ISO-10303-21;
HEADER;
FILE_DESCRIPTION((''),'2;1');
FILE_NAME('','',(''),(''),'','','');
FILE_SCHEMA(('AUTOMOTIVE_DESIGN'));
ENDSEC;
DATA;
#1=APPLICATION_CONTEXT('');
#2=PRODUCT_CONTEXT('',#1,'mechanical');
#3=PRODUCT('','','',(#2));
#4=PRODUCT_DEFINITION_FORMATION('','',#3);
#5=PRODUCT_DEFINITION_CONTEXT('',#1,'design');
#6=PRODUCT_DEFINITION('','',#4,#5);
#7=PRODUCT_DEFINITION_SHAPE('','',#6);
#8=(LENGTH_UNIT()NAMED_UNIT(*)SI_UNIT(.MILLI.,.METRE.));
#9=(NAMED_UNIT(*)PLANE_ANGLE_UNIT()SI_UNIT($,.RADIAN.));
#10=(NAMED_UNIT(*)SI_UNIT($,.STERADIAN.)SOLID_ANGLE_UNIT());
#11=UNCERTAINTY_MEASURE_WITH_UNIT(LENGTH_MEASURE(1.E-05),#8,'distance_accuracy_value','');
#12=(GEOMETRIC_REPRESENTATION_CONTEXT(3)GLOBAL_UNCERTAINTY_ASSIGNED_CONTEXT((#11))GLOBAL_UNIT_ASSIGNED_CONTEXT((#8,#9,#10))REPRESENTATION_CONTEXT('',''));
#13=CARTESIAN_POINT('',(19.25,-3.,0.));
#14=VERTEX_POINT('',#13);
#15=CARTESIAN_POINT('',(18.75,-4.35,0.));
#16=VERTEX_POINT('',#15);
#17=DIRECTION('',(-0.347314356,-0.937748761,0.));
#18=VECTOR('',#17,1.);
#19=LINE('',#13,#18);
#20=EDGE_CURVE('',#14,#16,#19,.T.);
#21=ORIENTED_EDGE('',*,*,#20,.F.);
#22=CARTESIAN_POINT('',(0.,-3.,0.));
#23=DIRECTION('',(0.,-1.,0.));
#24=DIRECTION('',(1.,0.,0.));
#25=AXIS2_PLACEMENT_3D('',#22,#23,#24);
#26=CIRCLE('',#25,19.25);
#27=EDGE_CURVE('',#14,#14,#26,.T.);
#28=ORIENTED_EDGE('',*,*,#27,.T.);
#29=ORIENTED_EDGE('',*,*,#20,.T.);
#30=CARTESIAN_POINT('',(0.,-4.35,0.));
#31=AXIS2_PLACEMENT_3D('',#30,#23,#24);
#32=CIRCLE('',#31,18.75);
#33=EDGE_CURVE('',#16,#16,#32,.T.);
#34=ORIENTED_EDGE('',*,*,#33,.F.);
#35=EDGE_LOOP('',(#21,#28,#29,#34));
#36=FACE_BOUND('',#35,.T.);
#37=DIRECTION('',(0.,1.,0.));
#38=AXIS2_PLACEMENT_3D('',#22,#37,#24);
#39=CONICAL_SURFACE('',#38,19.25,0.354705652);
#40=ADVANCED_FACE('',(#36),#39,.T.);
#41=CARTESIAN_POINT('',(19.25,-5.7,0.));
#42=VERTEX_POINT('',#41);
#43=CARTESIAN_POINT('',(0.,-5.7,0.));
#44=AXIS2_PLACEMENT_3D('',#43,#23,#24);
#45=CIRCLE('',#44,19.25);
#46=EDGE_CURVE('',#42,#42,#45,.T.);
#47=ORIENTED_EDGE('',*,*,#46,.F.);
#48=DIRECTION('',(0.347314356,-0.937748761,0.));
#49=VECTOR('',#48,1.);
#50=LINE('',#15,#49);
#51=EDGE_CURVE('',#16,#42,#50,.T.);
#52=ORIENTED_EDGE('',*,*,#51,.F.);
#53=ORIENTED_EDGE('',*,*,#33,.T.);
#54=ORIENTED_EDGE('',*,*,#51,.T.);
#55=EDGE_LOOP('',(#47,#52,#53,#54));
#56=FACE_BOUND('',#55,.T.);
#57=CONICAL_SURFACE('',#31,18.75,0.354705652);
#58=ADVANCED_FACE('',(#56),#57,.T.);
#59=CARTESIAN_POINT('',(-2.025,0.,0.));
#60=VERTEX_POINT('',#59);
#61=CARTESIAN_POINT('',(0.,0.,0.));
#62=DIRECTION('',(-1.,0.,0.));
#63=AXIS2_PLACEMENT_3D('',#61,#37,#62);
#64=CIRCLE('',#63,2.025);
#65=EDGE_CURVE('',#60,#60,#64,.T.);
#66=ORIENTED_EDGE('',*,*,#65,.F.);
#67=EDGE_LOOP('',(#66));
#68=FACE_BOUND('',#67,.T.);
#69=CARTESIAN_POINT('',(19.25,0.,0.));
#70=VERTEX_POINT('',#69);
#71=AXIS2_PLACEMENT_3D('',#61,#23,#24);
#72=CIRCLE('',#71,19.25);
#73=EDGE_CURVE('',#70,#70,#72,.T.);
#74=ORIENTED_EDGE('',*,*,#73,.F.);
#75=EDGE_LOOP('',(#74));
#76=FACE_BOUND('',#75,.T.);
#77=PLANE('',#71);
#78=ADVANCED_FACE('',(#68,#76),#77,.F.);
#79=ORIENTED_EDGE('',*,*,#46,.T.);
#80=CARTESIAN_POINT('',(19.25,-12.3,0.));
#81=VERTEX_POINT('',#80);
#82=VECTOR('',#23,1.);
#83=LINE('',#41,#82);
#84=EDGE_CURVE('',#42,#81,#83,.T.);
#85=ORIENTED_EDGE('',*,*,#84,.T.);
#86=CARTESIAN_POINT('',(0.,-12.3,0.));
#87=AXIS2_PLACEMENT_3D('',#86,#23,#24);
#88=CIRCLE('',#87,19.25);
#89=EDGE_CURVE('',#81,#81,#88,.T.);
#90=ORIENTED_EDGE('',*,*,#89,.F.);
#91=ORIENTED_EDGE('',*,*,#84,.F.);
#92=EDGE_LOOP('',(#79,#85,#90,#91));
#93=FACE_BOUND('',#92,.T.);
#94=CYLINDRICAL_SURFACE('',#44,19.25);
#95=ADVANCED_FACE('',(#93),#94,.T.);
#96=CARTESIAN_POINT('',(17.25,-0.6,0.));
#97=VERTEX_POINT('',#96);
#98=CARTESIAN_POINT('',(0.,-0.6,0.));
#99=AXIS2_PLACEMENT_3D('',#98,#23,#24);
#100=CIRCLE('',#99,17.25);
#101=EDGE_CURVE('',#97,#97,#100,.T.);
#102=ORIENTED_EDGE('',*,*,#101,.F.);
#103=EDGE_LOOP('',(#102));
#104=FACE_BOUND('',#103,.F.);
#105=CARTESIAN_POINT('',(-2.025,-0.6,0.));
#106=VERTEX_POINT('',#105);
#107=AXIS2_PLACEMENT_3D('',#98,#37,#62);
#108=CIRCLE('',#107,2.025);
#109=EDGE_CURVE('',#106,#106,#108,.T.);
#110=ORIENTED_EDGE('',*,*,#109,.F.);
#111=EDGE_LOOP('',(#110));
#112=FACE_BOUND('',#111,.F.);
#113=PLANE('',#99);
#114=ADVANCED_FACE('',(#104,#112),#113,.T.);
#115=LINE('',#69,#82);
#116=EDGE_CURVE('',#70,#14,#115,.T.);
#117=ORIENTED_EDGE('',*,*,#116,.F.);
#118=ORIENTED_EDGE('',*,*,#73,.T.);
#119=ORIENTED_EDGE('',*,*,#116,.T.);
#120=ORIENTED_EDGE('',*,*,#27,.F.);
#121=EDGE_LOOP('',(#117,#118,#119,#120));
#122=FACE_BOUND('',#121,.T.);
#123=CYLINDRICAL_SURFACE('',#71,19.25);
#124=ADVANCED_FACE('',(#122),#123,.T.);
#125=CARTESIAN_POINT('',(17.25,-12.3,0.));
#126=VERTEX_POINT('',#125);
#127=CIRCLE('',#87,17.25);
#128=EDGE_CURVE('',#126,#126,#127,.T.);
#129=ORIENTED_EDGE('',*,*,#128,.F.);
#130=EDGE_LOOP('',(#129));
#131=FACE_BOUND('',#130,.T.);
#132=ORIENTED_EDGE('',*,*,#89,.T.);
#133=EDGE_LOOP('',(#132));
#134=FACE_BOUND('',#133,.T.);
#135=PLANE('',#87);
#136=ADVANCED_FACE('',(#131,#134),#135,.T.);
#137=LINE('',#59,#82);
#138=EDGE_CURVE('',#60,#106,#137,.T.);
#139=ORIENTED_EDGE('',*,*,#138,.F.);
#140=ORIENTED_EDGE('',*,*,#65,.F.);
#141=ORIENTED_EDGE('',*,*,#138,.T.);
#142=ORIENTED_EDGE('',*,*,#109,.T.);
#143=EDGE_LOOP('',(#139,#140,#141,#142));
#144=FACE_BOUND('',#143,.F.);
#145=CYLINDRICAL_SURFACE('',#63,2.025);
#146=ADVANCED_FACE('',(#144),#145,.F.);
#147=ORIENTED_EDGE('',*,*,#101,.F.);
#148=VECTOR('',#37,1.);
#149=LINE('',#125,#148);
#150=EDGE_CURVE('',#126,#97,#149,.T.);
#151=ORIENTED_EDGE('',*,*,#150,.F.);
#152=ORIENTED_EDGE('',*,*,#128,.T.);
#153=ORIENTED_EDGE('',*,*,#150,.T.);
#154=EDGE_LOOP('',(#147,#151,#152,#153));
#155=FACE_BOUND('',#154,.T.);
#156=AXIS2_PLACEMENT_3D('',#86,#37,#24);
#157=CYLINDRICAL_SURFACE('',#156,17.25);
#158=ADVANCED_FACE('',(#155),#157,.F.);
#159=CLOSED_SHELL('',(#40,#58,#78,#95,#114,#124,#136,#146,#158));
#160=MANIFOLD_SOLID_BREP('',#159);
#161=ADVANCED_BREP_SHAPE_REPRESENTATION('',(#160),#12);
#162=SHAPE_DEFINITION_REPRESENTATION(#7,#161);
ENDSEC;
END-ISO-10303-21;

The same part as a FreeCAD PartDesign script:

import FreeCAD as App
import Part
import Sketcher
from FreeCAD import Vector
Q = App.Units.Quantity

doc = App.newDocument("Part")
body = doc.addObject("PartDesign::Body", "Body")

sketch1 = doc.addObject("Sketcher::SketchObject", "Sketch")
body.addObject(sketch1)
sketch1.AttachmentSupport = (doc.XY_Plane, [""])
sketch1.MapMode = "FlatFace"
sketch1.addGeometry(Part.LineSegment(Vector(19.25, 0, 0), Vector(0, 0, 0)), False)
sketch1.addGeometry(Part.LineSegment(Vector(0, 0, 0), Vector(0, -0.6, 0)), False)
sketch1.addGeometry(Part.LineSegment(Vector(0, -0.6, 0), Vector(17.25, -0.6, 0)), False)
sketch1.addGeometry(Part.LineSegment(Vector(17.25, -0.6, 0), Vector(17.25, -12.3, 0)), False)
sketch1.addGeometry(Part.LineSegment(Vector(17.25, -12.3, 0), Vector(19.25, -12.3, 0)), False)
sketch1.addGeometry(Part.LineSegment(Vector(19.25, -12.3, 0), Vector(19.25, -5.7, 0)), False)
sketch1.addGeometry(Part.LineSegment(Vector(19.25, -5.7, 0), Vector(18.75, -4.35, 0)), False)
sketch1.addGeometry(Part.LineSegment(Vector(18.75, -4.35, 0), Vector(19.25, -3, 0)), False)
sketch1.addGeometry(Part.LineSegment(Vector(19.25, -3, 0), Vector(19.25, 0, 0)), False)
sketch1.addConstraint(Sketcher.Constraint("Coincident", 0, 2, 1, 1))
sketch1.addConstraint(Sketcher.Constraint("Coincident", 1, 2, 2, 1))
sketch1.addConstraint(Sketcher.Constraint("Coincident", 2, 2, 3, 1))
sketch1.addConstraint(Sketcher.Constraint("Coincident", 3, 2, 4, 1))
sketch1.addConstraint(Sketcher.Constraint("Coincident", 4, 2, 5, 1))
sketch1.addConstraint(Sketcher.Constraint("Coincident", 5, 2, 6, 1))
sketch1.addConstraint(Sketcher.Constraint("Coincident", 6, 2, 7, 1))
sketch1.addConstraint(Sketcher.Constraint("Coincident", 7, 2, 8, 1))
sketch1.addConstraint(Sketcher.Constraint("Coincident", 8, 2, 0, 1))
sketch1.addConstraint(Sketcher.Constraint("Horizontal", 0))
sketch1.addConstraint(Sketcher.Constraint("Vertical", 1))
sketch1.addConstraint(Sketcher.Constraint("Horizontal", 2))
sketch1.addConstraint(Sketcher.Constraint("Vertical", 3))
sketch1.addConstraint(Sketcher.Constraint("Horizontal", 4))
sketch1.addConstraint(Sketcher.Constraint("Vertical", 5))
sketch1.addConstraint(Sketcher.Constraint("Vertical", 8))
sketch1.addConstraint(Sketcher.Constraint("Coincident", 0, 2, -1, 1))
sketch1.addConstraint(Sketcher.Constraint("Vertical", 5, 2, 7, 2))
sketch1.addConstraint(Sketcher.Constraint("Equal", 6, 7))
sketch1.addConstraint(Sketcher.Constraint("DistanceX", 4, 1, 4, 2, Q("2 mm")))
sketch1.addConstraint(Sketcher.Constraint("DistanceY", 8, 1, 8, 2, Q("3 mm")))
sketch1.addConstraint(Sketcher.Constraint("DistanceY", 1, 2, 1, 1, Q("0.6 mm")))
sketch1.addConstraint(Sketcher.Constraint("DistanceY", 3, 2, 3, 1, Q("11.7 mm")))
sketch1.addConstraint(Sketcher.Constraint("DistanceY", 5, 1, 5, 2, Q("6.6 mm")))
sketch1.addConstraint(Sketcher.Constraint("DistanceX", 0, 2, 0, 1, Q("19.25 mm")))
sketch1.addConstraint(Sketcher.Constraint("DistanceX", 6, 2, 5, 2, Q("0.5 mm")))
revolution = doc.addObject("PartDesign::Revolution", "Revolution")
body.addObject(revolution)
revolution.Profile = sketch1
revolution.ReferenceAxis = (sketch1, ["V_Axis"])
revolution.Angle = 360

sketch2 = doc.addObject("Sketcher::SketchObject", "Sketch001")
body.addObject(sketch2)
sketch2.AttachmentSupport = (doc.XZ_Plane, [""])
sketch2.MapMode = "FlatFace"
sketch2.addGeometry(Part.Circle(Vector(0, 0, 0), Vector(0, 0, 1), 2.025), False)
sketch2.addConstraint(Sketcher.Constraint("Coincident", 0, 3, -1, 1))
sketch2.addConstraint(Sketcher.Constraint("Diameter", 0, Q("4.05 mm")))
pocket1 = doc.addObject("PartDesign::Pocket", "Pocket")
body.addObject(pocket1)
pocket1.Profile = sketch2
pocket1.Length = 3
pocket1.Reversed = True

doc.recompute()
